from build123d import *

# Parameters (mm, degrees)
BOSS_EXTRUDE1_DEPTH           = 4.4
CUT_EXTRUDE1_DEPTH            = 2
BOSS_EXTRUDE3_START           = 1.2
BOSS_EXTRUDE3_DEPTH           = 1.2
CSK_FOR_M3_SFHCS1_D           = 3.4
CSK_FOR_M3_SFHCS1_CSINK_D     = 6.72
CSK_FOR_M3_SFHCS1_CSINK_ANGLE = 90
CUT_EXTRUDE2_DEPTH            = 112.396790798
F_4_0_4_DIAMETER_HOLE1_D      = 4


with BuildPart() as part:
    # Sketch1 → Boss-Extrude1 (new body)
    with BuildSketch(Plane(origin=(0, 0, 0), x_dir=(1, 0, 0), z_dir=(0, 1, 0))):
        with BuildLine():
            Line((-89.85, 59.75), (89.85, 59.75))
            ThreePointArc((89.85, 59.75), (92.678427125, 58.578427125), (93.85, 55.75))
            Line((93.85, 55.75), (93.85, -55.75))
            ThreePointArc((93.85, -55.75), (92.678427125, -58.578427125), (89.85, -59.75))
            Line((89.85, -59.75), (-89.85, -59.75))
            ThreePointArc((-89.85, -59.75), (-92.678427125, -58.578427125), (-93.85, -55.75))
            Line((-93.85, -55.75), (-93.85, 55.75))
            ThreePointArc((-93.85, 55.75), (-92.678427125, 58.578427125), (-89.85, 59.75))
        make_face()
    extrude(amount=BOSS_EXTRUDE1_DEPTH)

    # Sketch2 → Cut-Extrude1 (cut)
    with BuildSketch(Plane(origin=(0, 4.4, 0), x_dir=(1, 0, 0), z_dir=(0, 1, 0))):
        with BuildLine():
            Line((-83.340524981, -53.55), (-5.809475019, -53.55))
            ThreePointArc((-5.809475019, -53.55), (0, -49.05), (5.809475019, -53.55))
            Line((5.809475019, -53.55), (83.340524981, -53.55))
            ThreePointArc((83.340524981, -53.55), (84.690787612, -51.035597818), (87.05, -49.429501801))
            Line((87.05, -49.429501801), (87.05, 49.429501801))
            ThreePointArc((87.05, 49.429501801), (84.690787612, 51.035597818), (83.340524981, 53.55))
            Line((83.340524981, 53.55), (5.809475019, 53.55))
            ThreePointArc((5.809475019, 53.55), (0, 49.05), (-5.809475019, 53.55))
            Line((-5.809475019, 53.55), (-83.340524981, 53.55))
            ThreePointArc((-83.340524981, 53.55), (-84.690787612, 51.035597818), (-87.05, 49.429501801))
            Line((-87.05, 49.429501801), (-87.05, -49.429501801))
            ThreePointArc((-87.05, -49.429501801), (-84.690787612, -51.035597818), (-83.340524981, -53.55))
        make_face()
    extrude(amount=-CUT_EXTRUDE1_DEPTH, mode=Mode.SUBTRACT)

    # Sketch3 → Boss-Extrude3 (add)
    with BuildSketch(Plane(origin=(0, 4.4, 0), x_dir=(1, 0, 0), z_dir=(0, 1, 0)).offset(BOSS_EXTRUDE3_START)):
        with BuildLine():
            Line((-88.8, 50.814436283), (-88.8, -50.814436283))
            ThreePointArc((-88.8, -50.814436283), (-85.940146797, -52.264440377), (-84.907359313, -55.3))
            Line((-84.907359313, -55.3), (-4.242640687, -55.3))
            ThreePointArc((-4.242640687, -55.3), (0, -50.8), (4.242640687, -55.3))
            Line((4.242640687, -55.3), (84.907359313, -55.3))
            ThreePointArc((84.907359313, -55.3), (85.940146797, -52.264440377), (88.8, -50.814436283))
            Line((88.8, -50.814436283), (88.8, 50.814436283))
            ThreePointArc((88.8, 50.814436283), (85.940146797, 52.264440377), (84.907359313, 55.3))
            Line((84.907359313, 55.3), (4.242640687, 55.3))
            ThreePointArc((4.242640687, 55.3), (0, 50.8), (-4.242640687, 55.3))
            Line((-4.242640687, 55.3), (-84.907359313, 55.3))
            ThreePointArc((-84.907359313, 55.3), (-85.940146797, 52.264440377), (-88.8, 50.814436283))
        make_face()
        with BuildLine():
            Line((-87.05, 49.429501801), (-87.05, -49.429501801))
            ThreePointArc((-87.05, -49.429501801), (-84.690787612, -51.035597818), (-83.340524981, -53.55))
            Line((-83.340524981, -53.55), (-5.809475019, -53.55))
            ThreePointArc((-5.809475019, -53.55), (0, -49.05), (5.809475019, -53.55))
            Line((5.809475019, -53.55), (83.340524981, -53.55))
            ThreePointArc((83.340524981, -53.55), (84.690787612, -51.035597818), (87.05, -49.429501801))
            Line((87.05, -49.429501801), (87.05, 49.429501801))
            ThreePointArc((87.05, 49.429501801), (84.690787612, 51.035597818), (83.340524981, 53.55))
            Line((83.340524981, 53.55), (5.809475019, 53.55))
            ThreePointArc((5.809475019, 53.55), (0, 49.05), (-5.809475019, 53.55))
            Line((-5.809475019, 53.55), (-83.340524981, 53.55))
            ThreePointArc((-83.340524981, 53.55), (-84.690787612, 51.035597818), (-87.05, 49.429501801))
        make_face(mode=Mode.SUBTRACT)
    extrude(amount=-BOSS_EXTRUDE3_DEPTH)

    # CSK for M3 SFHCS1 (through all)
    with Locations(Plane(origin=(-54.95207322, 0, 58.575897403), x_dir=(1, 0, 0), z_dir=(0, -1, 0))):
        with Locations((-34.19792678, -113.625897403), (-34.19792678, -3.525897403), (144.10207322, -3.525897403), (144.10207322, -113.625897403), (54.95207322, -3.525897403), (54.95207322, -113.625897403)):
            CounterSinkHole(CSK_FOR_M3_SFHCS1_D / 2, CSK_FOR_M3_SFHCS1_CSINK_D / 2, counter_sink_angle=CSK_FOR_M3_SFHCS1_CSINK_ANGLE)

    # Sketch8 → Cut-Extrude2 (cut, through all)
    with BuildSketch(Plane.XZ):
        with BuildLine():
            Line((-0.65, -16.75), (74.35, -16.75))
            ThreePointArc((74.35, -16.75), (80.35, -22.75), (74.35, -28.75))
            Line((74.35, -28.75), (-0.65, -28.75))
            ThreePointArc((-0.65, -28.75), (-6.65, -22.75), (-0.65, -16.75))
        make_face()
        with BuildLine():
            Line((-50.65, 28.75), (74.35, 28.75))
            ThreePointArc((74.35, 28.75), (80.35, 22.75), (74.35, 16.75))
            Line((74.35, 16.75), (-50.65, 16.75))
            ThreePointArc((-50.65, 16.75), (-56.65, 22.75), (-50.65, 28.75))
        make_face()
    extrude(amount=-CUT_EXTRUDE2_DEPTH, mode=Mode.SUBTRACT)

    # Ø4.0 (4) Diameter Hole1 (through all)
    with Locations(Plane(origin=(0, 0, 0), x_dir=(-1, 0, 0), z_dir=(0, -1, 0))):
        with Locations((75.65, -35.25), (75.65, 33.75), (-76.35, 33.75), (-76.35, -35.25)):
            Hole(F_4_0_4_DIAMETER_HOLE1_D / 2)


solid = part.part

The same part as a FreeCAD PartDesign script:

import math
import FreeCAD as App
import Part
import Sketcher
Q = App.Units.Quantity

doc = App.newDocument("Part")
body = doc.addObject("PartDesign::Body", "Body")

# Sketch on XZ plane
sketch1 = doc.addObject("Sketcher::SketchObject", "Sketch")
body.addObject(sketch1)
sketch1.AttachmentSupport = (doc.XZ_Plane, [""])
sketch1.MapMode = "FlatFace"
sketch1.addGeometry(Part.LineSegment(App.Vector(89.8, -59.8, 0), App.Vector(-89.8, -59.8, 0)), False)
sketch1.addGeometry(Part.ArcOfCircle(Part.Circle(App.Vector(-89.9, -55.8, 0), App.Vector(0, 0, 1), 4), math.radians(180), math.radians(270)), False)
sketch1.addGeometry(Part.LineSegment(App.Vector(-93.8, -55.8, 0), App.Vector(-93.8, 55.8, 0)), False)
sketch1.addGeometry(Part.ArcOfCircle(Part.Circle(App.Vector(-89.9, 55.8, 0), App.Vector(0, 0, 1), 4), math.radians(90), math.radians(180)), False)
sketch1.addGeometry(Part.LineSegment(App.Vector(-89.8, 59.8, 0), App.Vector(89.8, 59.8, 0)), False)
sketch1.addGeometry(Part.ArcOfCircle(Part.Circle(App.Vector(89.9, 55.8, 0), App.Vector(0, 0, 1), 4), math.radians(0), math.radians(90)), False)
sketch1.addGeometry(Part.LineSegment(App.Vector(93.8, 55.8, 0), App.Vector(93.8, -55.8, 0)), False)
sketch1.addGeometry(Part.ArcOfCircle(Part.Circle(App.Vector(89.9, -55.8, 0), App.Vector(0, 0, 1), 4), math.radians(-90), math.radians(0)), False)
sketch1.addConstraint(Sketcher.Constraint("Tangent", 0, 2, 1, 2))
sketch1.addConstraint(Sketcher.Constraint("Tangent", 1, 1, 2, 1))
sketch1.addConstraint(Sketcher.Constraint("Tangent", 2, 2, 3, 2))
sketch1.addConstraint(Sketcher.Constraint("Tangent", 3, 1, 4, 1))
sketch1.addConstraint(Sketcher.Constraint("Tangent", 4, 2, 5, 2))
sketch1.addConstraint(Sketcher.Constraint("Tangent", 5, 1, 6, 1))
sketch1.addConstraint(Sketcher.Constraint("Tangent", 6, 2, 7, 2))
sketch1.addConstraint(Sketcher.Constraint("Tangent", 7, 1, 0, 1))
sketch1.addConstraint(Sketcher.Constraint("Horizontal", 0))
sketch1.addConstraint(Sketcher.Constraint("Vertical", 2))
sketch1.addConstraint(Sketcher.Constraint("Horizontal", 4))
sketch1.addConstraint(Sketcher.Constraint("Vertical", 6))
sketch1.addConstraint(Sketcher.Constraint("Equal", 1, 3))
sketch1.addConstraint(Sketcher.Constraint("Equal", 3, 5))
sketch1.addConstraint(Sketcher.Constraint("Equal", 5, 7))
sketch1.addConstraint(Sketcher.Constraint("Symmetric", 1, 3, 5, 3, -1, 1))
sketch1.addConstraint(Sketcher.Constraint("Radius", 1, Q("4 mm")))
sketch1.addConstraint(Sketcher.Constraint("DistanceX", 0, 2, 0, 1, Q("179.7 mm")))
sketch1.addConstraint(Sketcher.Constraint("DistanceY", 2, 1, 2, 2, Q("111.5 mm")))
pad1 = doc.addObject("PartDesign::Pad", "Pad")
body.addObject(pad1)
pad1.Profile = sketch1
pad1.Length = 4.4
pad1.Reversed = True

# Sketch on XZ plane
sketch2 = doc.addObject("Sketcher::SketchObject", "Sketch001")
body.addObject(sketch2)
sketch2.AttachmentSupport = (doc.XZ_Plane, [""])
sketch2.MapMode = "FlatFace"
sketch2.AttachmentOffset = App.Placement(App.Vector(0, 0, -4.4), App.Rotation())
sketch2.addGeometry(Part.LineSegment(App.Vector(-83, 54, 0), App.Vector(-6, 54, 0)), False)
sketch2.addGeometry(Part.ArcOfCircle(Part.Circle(App.Vector(0, 55, 0), App.Vector(0, 0, 1), 6), math.radians(-166), math.radians(-14)), False)
sketch2.addGeometry(Part.LineSegment(App.Vector(6, 54, 0), App.Vector(83, 54, 0)), False)
sketch2.addGeometry(Part.ArcOfCircle(Part.Circle(App.Vector(89, 55, 0), App.Vector(0, 0, 1), 6), math.radians(-166), math.radians(-110)), False)
sketch2.addGeometry(Part.LineSegment(App.Vector(87, 49, 0), App.Vector(87, -49, 0)), False)
sketch2.addGeometry(Part.ArcOfCircle(Part.Circle(App.Vector(89, -55, 0), App.Vector(0, 0, 1), 6), math.radians(110), math.radians(166)), False)
sketch2.addGeometry(Part.LineSegment(App.Vector(83, -54, 0), App.Vector(6, -54, 0)), False)
sketch2.addGeometry(Part.ArcOfCircle(Part.Circle(App.Vector(0, -55, 0), App.Vector(0, 0, 1), 6), math.radians(14), math.radians(166)), False)
sketch2.addGeometry(Part.LineSegment(App.Vector(-6, -54, 0), App.Vector(-83, -54, 0)), False)
sketch2.addGeometry(Part.ArcOfCircle(Part.Circle(App.Vector(-89, -55, 0), App.Vector(0, 0, 1), 6), math.radians(14), math.radians(70)), False)
sketch2.addGeometry(Part.LineSegment(App.Vector(-87, -49, 0), App.Vector(-87, 49, 0)), False)
sketch2.addGeometry(Part.ArcOfCircle(Part.Circle(App.Vector(-89, 55, 0), App.Vector(0, 0, 1), 6), math.radians(-70), math.radians(-14)), False)
sketch2.addConstraint(Sketcher.Constraint("Coincident", 0, 2, 1, 1))
sketch2.addConstraint(Sketcher.Constraint("Coincident", 1, 2, 2, 1))
sketch2.addConstraint(Sketcher.Constraint("Coincident", 2, 2, 3, 1))
sketch2.addConstraint(Sketcher.Constraint("Coincident", 3, 2, 4, 1))
sketch2.addConstraint(Sketcher.Constraint("Coincident", 4, 2, 5, 1))
sketch2.addConstraint(Sketcher.Constraint("Coincident", 5, 2, 6, 1))
sketch2.addConstraint(Sketcher.Constraint("Coincident", 6, 2, 7, 1))
sketch2.addConstraint(Sketcher.Constraint("Coincident", 7, 2, 8, 1))
sketch2.addConstraint(Sketcher.Constraint("Coincident", 8, 2, 9, 1))
sketch2.addConstraint(Sketcher.Constraint("Coincident", 9, 2, 10, 1))
sketch2.addConstraint(Sketcher.Constraint("Coincident", 10, 2, 11, 1))
sketch2.addConstraint(Sketcher.Constraint("Coincident", 11, 2, 0, 1))
sketch2.addConstraint(Sketcher.Constraint("Horizontal", 0))
sketch2.addConstraint(Sketcher.Constraint("Horizontal", 2))
sketch2.addConstraint(Sketcher.Constraint("Vertical", 4))
sketch2.addConstraint(Sketcher.Constraint("Horizontal", 6))
sketch2.addConstraint(Sketcher.Constraint("Horizontal", 8))
sketch2.addConstraint(Sketcher.Constraint("Vertical", 10))
sketch2.addConstraint(Sketcher.Constraint("Equal", 1, 3))
sketch2.addConstraint(Sketcher.Constraint("Equal", 3, 5))
sketch2.addConstraint(Sketcher.Constraint("Equal", 5, 7))
sketch2.addConstraint(Sketcher.Constraint("Equal", 7, 9))
sketch2.addConstraint(Sketcher.Constraint("Equal", 9, 11))
sketch2.addConstraint(Sketcher.Constraint("Symmetric", 1, 3, 7, 3, -1, 1))
sketch2.addConstraint(Sketcher.Constraint("Symmetric", 3, 3, 9, 3, -1, 1))
sketch2.addConstraint(Sketcher.Constraint("Symmetric", 5, 3, 11, 3, -1, 1))
sketch2.addConstraint(Sketcher.Constraint("Symmetric", 5, 3, 9, 3, -2))
sketch2.addConstraint(Sketcher.Constraint("Symmetric", 0, 2, 1, 2, -2))
sketch2.addConstraint(Sketcher.Constraint("Horizontal", 1, 3, 3, 3))
sketch2.addConstraint(Sketcher.Constraint("Horizontal", 6, 2, 7, 2))
sketch2.addConstraint(Sketcher.Constraint("Horizontal", 4, 2, 9, 2))
sketch2.addConstraint(Sketcher.Constraint("Vertical", 2, 2, 5, 2))
sketch2.addConstraint(Sketcher.Constraint("Radius", 1, Q("6 mm")))
sketch2.addConstraint(Sketcher.Constraint("DistanceY", 5, 3, 3, 3, Q("110.1 mm")))
sketch2.addConstraint(Sketcher.Constraint("DistanceX", 9, 3, 5, 3, Q("178.3 mm")))
sketch2.addConstraint(Sketcher.Constraint("DistanceY", 0, 2, 1, 3, Q("1.5 mm")))
sketch2.addConstraint(Sketcher.Constraint("DistanceX", 3, 2, 3, 3, Q("2.1 mm")))
pocket1 = doc.addObject("PartDesign::Pocket", "Pocket")
body.addObject(pocket1)
pocket1.Profile = sketch2
pocket1.Length = 2
pocket1.Reversed = True

# Sketch on XZ plane
sketch3 = doc.addObject("Sketcher::SketchObject", "Sketch002")
body.addObject(sketch3)
sketch3.AttachmentSupport = (doc.XZ_Plane, [""])
sketch3.MapMode = "FlatFace"
sketch3.AttachmentOffset = App.Placement(App.Vector(0, 0, -5.6), App.Rotation())
sketch3.addGeometry(Part.LineSegment(App.Vector(-88.8, -50.8, 0), App.Vector(-88.8, 50.8, 0)), False)
sketch3.addGeometry(Part.ArcOfCircle(Part.Circle(App.Vector(-89.2, 55, 0), App.Vector(0, 0, 1), 4.3), math.radians(-85), math.radians(3)), False)
sketch3.addGeometry(Part.LineSegment(App.Vector(-84.9, 55.3, 0), App.Vector(-4.2, 55.3, 0)), False)
sketch3.addGeometry(Part.ArcOfCircle(Part.Circle(App.Vector(0, 55, 0), App.Vector(0, 0, 1), 4.2), math.radians(177), math.radians(363)), False)
sketch3.addGeometry(Part.LineSegment(App.Vector(4.2, 55.3, 0), App.Vector(84.9, 55.3, 0)), False)
sketch3.addGeometry(Part.ArcOfCircle(Part.Circle(App.Vector(89.2, 55, 0), App.Vector(0, 0, 1), 4.3), math.radians(177), math.radians(265)), False)
sketch3.addGeometry(Part.LineSegment(App.Vector(88.8, 50.8, 0), App.Vector(88.8, -50.8, 0)), False)
sketch3.addGeometry(Part.ArcOfCircle(Part.Circle(App.Vector(89.2, -55, 0), App.Vector(0, 0, 1), 4.3), math.radians(95), math.radians(183)), False)
sketch3.addGeometry(Part.LineSegment(App.Vector(84.9, -55.3, 0), App.Vector(4.2, -55.3, 0)), False)
sketch3.addGeometry(Part.ArcOfCircle(Part.Circle(App.Vector(0, -55, 0), App.Vector(0, 0, 1), 4.2), math.radians(-3), math.radians(183)), False)
sketch3.addGeometry(Part.LineSegment(App.Vector(-4.2, -55.3, 0), App.Vector(-84.9, -55.3, 0)), False)
sketch3.addGeometry(Part.ArcOfCircle(Part.Circle(App.Vector(-89.2, -55, 0), App.Vector(0, 0, 1), 4.3), math.radians(-3), math.radians(85)), False)
sketch3.addGeometry(Part.LineSegment(App.Vector(-87, 49.4, 0), App.Vector(-87, -49.4, 0)), False)
sketch3.addGeometry(Part.ArcOfCircle(Part.Circle(App.Vector(-89.2, -55, 0), App.Vector(0, 0, 1), 6), math.radians(14), math.radians(70)), False)
sketch3.addGeometry(Part.LineSegment(App.Vector(-83.3, -53.5, 0), App.Vector(-5.8, -53.5, 0)), False)
sketch3.addGeometry(Part.ArcOfCircle(Part.Circle(App.Vector(0, -55, 0), App.Vector(0, 0, 1), 6), math.radians(14), math.radians(166)), False)
sketch3.addGeometry(Part.LineSegment(App.Vector(5.8, -53.5, 0), App.Vector(83.3, -53.5, 0)), False)
sketch3.addGeometry(Part.ArcOfCircle(Part.Circle(App.Vector(89.2, -55, 0), App.Vector(0, 0, 1), 6), math.radians(110), math.radians(166)), False)
sketch3.addGeometry(Part.LineSegment(App.Vector(87, -49.4, 0), App.Vector(87, 49.4, 0)), False)
sketch3.addGeometry(Part.ArcOfCircle(Part.Circle(App.Vector(89.2, 55, 0), App.Vector(0, 0, 1), 6), math.radians(-166), math.radians(-110)), False)
sketch3.addGeometry(Part.LineSegment(App.Vector(83.3, 53.5, 0), App.Vector(5.8, 53.5, 0)), False)
sketch3.addGeometry(Part.ArcOfCircle(Part.Circle(App.Vector(0, 55, 0), App.Vector(0, 0, 1), 6), math.radians(-166), math.radians(-14)), False)
sketch3.addGeometry(Part.LineSegment(App.Vector(-5.8, 53.5, 0), App.Vector(-83.3, 53.5, 0)), False)
sketch3.addGeometry(Part.ArcOfCircle(Part.Circle(App.Vector(-89.2, 55, 0), App.Vector(0, 0, 1), 6), math.radians(-70), math.radians(-14)), False)
sketch3.addConstraint(Sketcher.Constraint("Coincident", 0, 2, 1, 1))
sketch3.addConstraint(Sketcher.Constraint("Coincident", 1, 2, 2, 1))
sketch3.addConstraint(Sketcher.Constraint("Coincident", 2, 2, 3, 1))
sketch3.addConstraint(Sketcher.Constraint("Coincident", 3, 2, 4, 1))
sketch3.addConstraint(Sketcher.Constraint("Coincident", 4, 2, 5, 1))
sketch3.addConstraint(Sketcher.Constraint("Coincident", 5, 2, 6, 1))
sketch3.addConstraint(Sketcher.Constraint("Coincident", 6, 2, 7, 1))
sketch3.addConstraint(Sketcher.Constraint("Coincident", 7, 2, 8, 1))
sketch3.addConstraint(Sketcher.Constraint("Coincident", 8, 2, 9, 1))
sketch3.addConstraint(Sketcher.Constraint("Coincident", 9, 2, 10, 1))
sketch3.addConstraint(Sketcher.Constraint("Coincident", 10, 2, 11, 1))
sketch3.addConstraint(Sketcher.Constraint("Coincident", 11, 2, 0, 1))
sketch3.addConstraint(Sketcher.Constraint("Coincident", 12, 2, 13, 2))
sketch3.addConstraint(Sketcher.Constraint("Coincident", 13, 1, 14, 1))
sketch3.addConstraint(Sketcher.Constraint("Coincident", 14, 2, 15, 2))
sketch3.addConstraint(Sketcher.Constraint("Coincident", 15, 1, 16, 1))
sketch3.addConstraint(Sketcher.Constraint("Coincident", 16, 2, 17, 2))
sketch3.addConstraint(Sketcher.Constraint("Coincident", 17, 1, 18, 1))
sketch3.addConstraint(Sketcher.Constraint("Coincident", 18, 2, 19, 2))
sketch3.addConstraint(Sketcher.Constraint("Coincident", 19, 1, 20, 1))
sketch3.addConstraint(Sketcher.Constraint("Coincident", 20, 2, 21, 2))
sketch3.addConstraint(Sketcher.Constraint("Coincident", 21, 1, 22, 1))
sketch3.addConstraint(Sketcher.Constraint("Coincident", 22, 2, 23, 2))
sketch3.addConstraint(Sketcher.Constraint("Coincident", 23, 1, 12, 1))
sketch3.addConstraint(Sketcher.Constraint("Vertical", 0))
sketch3.addConstraint(Sketcher.Constraint("Horizontal", 2))
sketch3.addConstraint(Sketcher.Constraint("Horizontal", 4))
sketch3.addConstraint(Sketcher.Constraint("Vertical", 6))
sketch3.addConstraint(Sketcher.Constraint("Horizontal", 8))
sketch3.addConstraint(Sketcher.Constraint("Horizontal", 10))
sketch3.addConstraint(Sketcher.Constraint("Vertical", 12))
sketch3.addConstraint(Sketcher.Constraint("Horizontal", 14))
sketch3.addConstraint(Sketcher.Constraint("Horizontal", 16))
sketch3.addConstraint(Sketcher.Constraint("Vertical", 18))
sketch3.addConstraint(Sketcher.Constraint("Horizontal", 20))
sketch3.addConstraint(Sketcher.Constraint("Horizontal", 22))
sketch3.addConstraint(Sketcher.Constraint("Coincident", 13, 3, 11, 3))
sketch3.addConstraint(Sketcher.Constraint("Coincident", 15, 3, 9, 3))
sketch3.addConstraint(Sketcher.Constraint("Coincident", 17, 3, 7, 3))
sketch3.addConstraint(Sketcher.Constraint("Coincident", 19, 3, 5, 3))
sketch3.addConstraint(Sketcher.Constraint("Coincident", 21, 3, 3, 3))
sketch3.addConstraint(Sketcher.Constraint("Coincident", 23, 3, 1, 3))
sketch3.addConstraint(Sketcher.Constraint("Equal", 1, 3))
sketch3.addConstraint(Sketcher.Constraint("Equal", 3, 5))
sketch3.addConstraint(Sketcher.Constraint("Equal", 5, 7))
sketch3.addConstraint(Sketcher.Constraint("Equal", 7, 9))
sketch3.addConstraint(Sketcher.Constraint("Equal", 9, 11))
sketch3.addConstraint(Sketcher.Constraint("Equal", 13, 15))
sketch3.addConstraint(Sketcher.Constraint("Equal", 15, 17))
sketch3.addConstraint(Sketcher.Constraint("Equal", 17, 19))
sketch3.addConstraint(Sketcher.Constraint("Equal", 19, 21))
sketch3.addConstraint(Sketcher.Constraint("Equal", 21, 23))
sketch3.addConstraint(Sketcher.Constraint("Symmetric", 1, 3, 7, 3, -1, 1))
sketch3.addConstraint(Sketcher.Constraint("Symmetric", 3, 3, 9, 3, -1, 1))
sketch3.addConstraint(Sketcher.Constraint("Symmetric", 5, 3, 11, 3, -1, 1))
sketch3.addConstraint(Sketcher.Constraint("Symmetric", 1, 3, 5, 3, -2))
sketch3.addConstraint(Sketcher.Constraint("Symmetric", 2, 2, 3, 2, -2))
sketch3.addConstraint(Sketcher.Constraint("Horizontal", 1, 3, 3, 3))
sketch3.addConstraint(Sketcher.Constraint("Horizontal", 0, 2, 5, 2))
sketch3.addConstraint(Sketcher.Constraint("Horizontal", 8, 2, 9, 2))
sketch3.addConstraint(Sketcher.Constraint("Horizontal", 14, 2, 15, 1))
sketch3.addConstraint(Sketcher.Constraint("Horizontal", 12, 2, 17, 1))
sketch3.addConstraint(Sketcher.Constraint("Horizontal", 20, 2, 21, 1))
sketch3.addConstraint(Sketcher.Constraint("Vertical", 4, 2, 7, 2))
sketch3.addConstraint(Sketcher.Constraint("Vertical", 16, 2, 19, 1))
sketch3.addConstraint(Sketcher.Constraint("Radius", 13, Q("6 mm")))
sketch3.addConstraint(Sketcher.Constraint("Radius", 1, Q("4.25 mm")))
sketch3.addConstraint(Sketcher.Constraint("DistanceX", 0, 2, -1, 1, Q("88.8 mm")))
sketch3.addConstraint(Sketcher.Constraint("DistanceY", -1, 1, 1, 2, Q("55.3 mm")))
sketch3.addConstraint(Sketcher.Constraint("DistanceX", 1, 3, 5, 3, Q("178.3 mm")))
sketch3.addConstraint(Sketcher.Constraint("DistanceY", 7, 3, 5, 3, Q("110.1 mm")))
sketch3.addConstraint(Sketcher.Constraint("DistanceX", 11, 3, 12, 2, Q("2.1 mm")))
sketch3.addConstraint(Sketcher.Constraint("DistanceY", 11, 3, 13, 1, Q("1.5 mm")))
pad2 = doc.addObject("PartDesign::Pad", "Pad001")
body.addObject(pad2)
pad2.Profile = sketch3
pad2.Length = 1.2

# Sketch on XZ plane
sketch4 = doc.addObject("Sketcher::SketchObject", "Sketch003")
body.addObject(sketch4)
sketch4.AttachmentSupport = (doc.XZ_Plane, [""])
sketch4.MapMode = "FlatFace"
sketch4.addGeometry(Part.Circle(App.Vector(-89.2, -55, 0), App.Vector(0, 0, 1), 1.7), False)
sketch4.addGeometry(Part.Circle(App.Vector(-89.2, 55, 0), App.Vector(0, 0, 1), 1.7), False)
sketch4.addGeometry(Part.Circle(App.Vector(89.2, 55, 0), App.Vector(0, 0, 1), 1.7), False)
sketch4.addGeometry(Part.Circle(App.Vector(89.2, -55, 0), App.Vector(0, 0, 1), 1.7), False)
sketch4.addGeometry(Part.Circle(App.Vector(0, 55, 0), App.Vector(0, 0, 1), 1.7), False)
sketch4.addGeometry(Part.Circle(App.Vector(0, -55, 0), App.Vector(0, 0, 1), 1.7), False)
sketch4.addConstraint(Sketcher.Constraint("Equal", 0, 1))
sketch4.addConstraint(Sketcher.Constraint("Equal", 1, 2))
sketch4.addConstraint(Sketcher.Constraint("Equal", 2, 3))
sketch4.addConstraint(Sketcher.Constraint("Equal", 3, 4))
sketch4.addConstraint(Sketcher.Constraint("Equal", 4, 5))
sketch4.addConstraint(Sketcher.Constraint("Symmetric", 0, 3, 2, 3, -1, 1))
sketch4.addConstraint(Sketcher.Constraint("Symmetric", 1, 3, 3, 3, -1, 1))
sketch4.addConstraint(Sketcher.Constraint("Symmetric", 4, 3, 5, 3, -1, 1))
sketch4.addConstraint(Sketcher.Constraint("Symmetric", 1, 3, 2, 3, -2))
sketch4.addConstraint(Sketcher.Constraint("PointOnObject", 4, 3, -2))
sketch4.addConstraint(Sketcher.Constraint("Horizontal", 2, 3, 4, 3))
sketch4.addConstraint(Sketcher.Constraint("Diameter", 0, Q("3.4 mm")))
sketch4.addConstraint(Sketcher.Constraint("DistanceY", 0, 3, 1, 3, Q("110.1 mm")))
sketch4.addConstraint(Sketcher.Constraint("DistanceX", 1, 3, 2, 3, Q("178.3 mm")))
doc.recompute()
hole = doc.addObject("PartDesign::Hole", "Hole")
body.addObject(hole)
hole.Profile = sketch4
hole.ThreadType = "None"
hole.Diameter = 3.4
hole.DepthType = "ThroughAll"
hole.HoleCutType = "Countersink"
hole.HoleCutDiameter = 6.72
hole.HoleCutCountersinkAngle = 90

# Sketch on XZ plane
sketch5 = doc.addObject("Sketcher::SketchObject", "Sketch004")
body.addObject(sketch5)
sketch5.AttachmentSupport = (doc.XZ_Plane, [""])
sketch5.MapMode = "FlatFace"
sketch5.addGeometry(Part.LineSegment(App.Vector(74, -17, 0), App.Vector(-1, -17, 0)), False)
sketch5.addGeometry(Part.ArcOfCircle(Part.Circle(App.Vector(-1, -23, 0), App.Vector(0, 0, 1), 6), math.radians(90), math.radians(270)), False)
sketch5.addGeometry(Part.LineSegment(App.Vector(-1, -29, 0), App.Vector(74, -29, 0)), False)
sketch5.addGeometry(Part.ArcOfCircle(Part.Circle(App.Vector(74, -23, 0), App.Vector(0, 0, 1), 6), math.radians(-90), math.radians(90)), False)
sketch5.addGeometry(Part.LineSegment(App.Vector(74, 29, 0), App.Vector(-51, 29, 0)), False)
sketch5.addGeometry(Part.ArcOfCircle(Part.Circle(App.Vector(-51, 23, 0), App.Vector(0, 0, 1), 6), math.radians(90), math.radians(270)), False)
sketch5.addGeometry(Part.LineSegment(App.Vector(-51, 17, 0), App.Vector(74, 17, 0)), False)
sketch5.addGeometry(Part.ArcOfCircle(Part.Circle(App.Vector(74, 23, 0), App.Vector(0, 0, 1), 6), math.radians(-90), math.radians(90)), False)
sketch5.addConstraint(Sketcher.Constraint("Tangent", 0, 2, 1, 1))
sketch5.addConstraint(Sketcher.Constraint("Tangent", 1, 2, 2, 1))
sketch5.addConstraint(Sketcher.Constraint("Tangent", 2, 2, 3, 1))
sketch5.addConstraint(Sketcher.Constraint("Tangent", 3, 2, 0, 1))
sketch5.addConstraint(Sketcher.Constraint("Tangent", 4, 2, 5, 1))
sketch5.addConstraint(Sketcher.Constraint("Tangent", 5, 2, 6, 1))
sketch5.addConstraint(Sketcher.Constraint("Tangent", 6, 2, 7, 1))
sketch5.addConstraint(Sketcher.Constraint("Tangent", 7, 2, 4, 1))
sketch5.addConstraint(Sketcher.Constraint("Horizontal", 0))
sketch5.addConstraint(Sketcher.Constraint("Horizontal", 2))
sketch5.addConstraint(Sketcher.Constraint("Horizontal", 4))
sketch5.addConstraint(Sketcher.Constraint("Horizontal", 6))
sketch5.addConstraint(Sketcher.Constraint("Equal", 3, 5))
sketch5.addConstraint(Sketcher.Constraint("Symmetric", 3, 3, 7, 3, -1))
sketch5.addConstraint(Sketcher.Constraint("Radius", 1, Q("6 mm")))
sketch5.addConstraint(Sketcher.Constraint("DistanceX", 0, 2, 0, 1, Q("75 mm")))
sketch5.addConstraint(Sketcher.Constraint("DistanceX", 4, 2, 4, 1, Q("125 mm")))
sketch5.addConstraint(Sketcher.Constraint("DistanceY", 1, 3, 5, 3, Q("45.5 mm")))
sketch5.addConstraint(Sketcher.Constraint("DistanceX", 1, 3, -1, 1, Q("0.65 mm")))
pocket2 = doc.addObject("PartDesign::Pocket", "Pocket001")
body.addObject(pocket2)
pocket2.Profile = sketch5
pocket2.Type = "ThroughAll"

# Sketch on XZ plane
sketch6 = doc.addObject("Sketcher::SketchObject", "Sketch005")
body.addObject(sketch6)
sketch6.AttachmentSupport = (doc.XZ_Plane, [""])
sketch6.MapMode = "FlatFace"
sketch6.addGeometry(Part.Circle(App.Vector(-75.7, 35.2, 0), App.Vector(0, 0, 1), 2), False)
sketch6.addGeometry(Part.Circle(App.Vector(-75.7, -33.8, 0), App.Vector(0, 0, 1), 2), False)
sketch6.addGeometry(Part.Circle(App.Vector(76.3, -33.8, 0), App.Vector(0, 0, 1), 2), False)
sketch6.addGeometry(Part.Circle(App.Vector(76.3, 35.2, 0), App.Vector(0, 0, 1), 2), False)
sketch6.addConstraint(Sketcher.Constraint("Equal", 0, 1))
sketch6.addConstraint(Sketcher.Constraint("Equal", 1, 2))
sketch6.addConstraint(Sketcher.Constraint("Equal", 2, 3))
sketch6.addConstraint(Sketcher.Constraint("Horizontal", 1, 3, 2, 3))
sketch6.addConstraint(Sketcher.Constraint("Horizontal", 0, 3, 3, 3))
sketch6.addConstraint(Sketcher.Constraint("Vertical", 0, 3, 1, 3))
sketch6.addConstraint(Sketcher.Constraint("Vertical", 2, 3, 3, 3))
sketch6.addConstraint(Sketcher.Constraint("Diameter", 0, Q("4 mm")))
sketch6.addConstraint(Sketcher.Constraint("DistanceY", 1, 3, 0, 3, Q("69 mm")))
sketch6.addConstraint(Sketcher.Constraint("DistanceX", 1, 3, 2, 3, Q("152 mm")))
sketch6.addConstraint(Sketcher.Constraint("DistanceX", 0, 3, -1, 1, Q("75.65 mm")))
sketch6.addConstraint(Sketcher.Constraint("DistanceY", -1, 1, 0, 3, Q("35.25 mm")))
doc.recompute()
hole2 = doc.addObject("PartDesign::Hole", "Hole001")
body.addObject(hole2)
hole2.Profile = sketch6
hole2.ThreadType = "None"
hole2.Diameter = 4
hole2.DepthType = "ThroughAll"

doc.recompute()
